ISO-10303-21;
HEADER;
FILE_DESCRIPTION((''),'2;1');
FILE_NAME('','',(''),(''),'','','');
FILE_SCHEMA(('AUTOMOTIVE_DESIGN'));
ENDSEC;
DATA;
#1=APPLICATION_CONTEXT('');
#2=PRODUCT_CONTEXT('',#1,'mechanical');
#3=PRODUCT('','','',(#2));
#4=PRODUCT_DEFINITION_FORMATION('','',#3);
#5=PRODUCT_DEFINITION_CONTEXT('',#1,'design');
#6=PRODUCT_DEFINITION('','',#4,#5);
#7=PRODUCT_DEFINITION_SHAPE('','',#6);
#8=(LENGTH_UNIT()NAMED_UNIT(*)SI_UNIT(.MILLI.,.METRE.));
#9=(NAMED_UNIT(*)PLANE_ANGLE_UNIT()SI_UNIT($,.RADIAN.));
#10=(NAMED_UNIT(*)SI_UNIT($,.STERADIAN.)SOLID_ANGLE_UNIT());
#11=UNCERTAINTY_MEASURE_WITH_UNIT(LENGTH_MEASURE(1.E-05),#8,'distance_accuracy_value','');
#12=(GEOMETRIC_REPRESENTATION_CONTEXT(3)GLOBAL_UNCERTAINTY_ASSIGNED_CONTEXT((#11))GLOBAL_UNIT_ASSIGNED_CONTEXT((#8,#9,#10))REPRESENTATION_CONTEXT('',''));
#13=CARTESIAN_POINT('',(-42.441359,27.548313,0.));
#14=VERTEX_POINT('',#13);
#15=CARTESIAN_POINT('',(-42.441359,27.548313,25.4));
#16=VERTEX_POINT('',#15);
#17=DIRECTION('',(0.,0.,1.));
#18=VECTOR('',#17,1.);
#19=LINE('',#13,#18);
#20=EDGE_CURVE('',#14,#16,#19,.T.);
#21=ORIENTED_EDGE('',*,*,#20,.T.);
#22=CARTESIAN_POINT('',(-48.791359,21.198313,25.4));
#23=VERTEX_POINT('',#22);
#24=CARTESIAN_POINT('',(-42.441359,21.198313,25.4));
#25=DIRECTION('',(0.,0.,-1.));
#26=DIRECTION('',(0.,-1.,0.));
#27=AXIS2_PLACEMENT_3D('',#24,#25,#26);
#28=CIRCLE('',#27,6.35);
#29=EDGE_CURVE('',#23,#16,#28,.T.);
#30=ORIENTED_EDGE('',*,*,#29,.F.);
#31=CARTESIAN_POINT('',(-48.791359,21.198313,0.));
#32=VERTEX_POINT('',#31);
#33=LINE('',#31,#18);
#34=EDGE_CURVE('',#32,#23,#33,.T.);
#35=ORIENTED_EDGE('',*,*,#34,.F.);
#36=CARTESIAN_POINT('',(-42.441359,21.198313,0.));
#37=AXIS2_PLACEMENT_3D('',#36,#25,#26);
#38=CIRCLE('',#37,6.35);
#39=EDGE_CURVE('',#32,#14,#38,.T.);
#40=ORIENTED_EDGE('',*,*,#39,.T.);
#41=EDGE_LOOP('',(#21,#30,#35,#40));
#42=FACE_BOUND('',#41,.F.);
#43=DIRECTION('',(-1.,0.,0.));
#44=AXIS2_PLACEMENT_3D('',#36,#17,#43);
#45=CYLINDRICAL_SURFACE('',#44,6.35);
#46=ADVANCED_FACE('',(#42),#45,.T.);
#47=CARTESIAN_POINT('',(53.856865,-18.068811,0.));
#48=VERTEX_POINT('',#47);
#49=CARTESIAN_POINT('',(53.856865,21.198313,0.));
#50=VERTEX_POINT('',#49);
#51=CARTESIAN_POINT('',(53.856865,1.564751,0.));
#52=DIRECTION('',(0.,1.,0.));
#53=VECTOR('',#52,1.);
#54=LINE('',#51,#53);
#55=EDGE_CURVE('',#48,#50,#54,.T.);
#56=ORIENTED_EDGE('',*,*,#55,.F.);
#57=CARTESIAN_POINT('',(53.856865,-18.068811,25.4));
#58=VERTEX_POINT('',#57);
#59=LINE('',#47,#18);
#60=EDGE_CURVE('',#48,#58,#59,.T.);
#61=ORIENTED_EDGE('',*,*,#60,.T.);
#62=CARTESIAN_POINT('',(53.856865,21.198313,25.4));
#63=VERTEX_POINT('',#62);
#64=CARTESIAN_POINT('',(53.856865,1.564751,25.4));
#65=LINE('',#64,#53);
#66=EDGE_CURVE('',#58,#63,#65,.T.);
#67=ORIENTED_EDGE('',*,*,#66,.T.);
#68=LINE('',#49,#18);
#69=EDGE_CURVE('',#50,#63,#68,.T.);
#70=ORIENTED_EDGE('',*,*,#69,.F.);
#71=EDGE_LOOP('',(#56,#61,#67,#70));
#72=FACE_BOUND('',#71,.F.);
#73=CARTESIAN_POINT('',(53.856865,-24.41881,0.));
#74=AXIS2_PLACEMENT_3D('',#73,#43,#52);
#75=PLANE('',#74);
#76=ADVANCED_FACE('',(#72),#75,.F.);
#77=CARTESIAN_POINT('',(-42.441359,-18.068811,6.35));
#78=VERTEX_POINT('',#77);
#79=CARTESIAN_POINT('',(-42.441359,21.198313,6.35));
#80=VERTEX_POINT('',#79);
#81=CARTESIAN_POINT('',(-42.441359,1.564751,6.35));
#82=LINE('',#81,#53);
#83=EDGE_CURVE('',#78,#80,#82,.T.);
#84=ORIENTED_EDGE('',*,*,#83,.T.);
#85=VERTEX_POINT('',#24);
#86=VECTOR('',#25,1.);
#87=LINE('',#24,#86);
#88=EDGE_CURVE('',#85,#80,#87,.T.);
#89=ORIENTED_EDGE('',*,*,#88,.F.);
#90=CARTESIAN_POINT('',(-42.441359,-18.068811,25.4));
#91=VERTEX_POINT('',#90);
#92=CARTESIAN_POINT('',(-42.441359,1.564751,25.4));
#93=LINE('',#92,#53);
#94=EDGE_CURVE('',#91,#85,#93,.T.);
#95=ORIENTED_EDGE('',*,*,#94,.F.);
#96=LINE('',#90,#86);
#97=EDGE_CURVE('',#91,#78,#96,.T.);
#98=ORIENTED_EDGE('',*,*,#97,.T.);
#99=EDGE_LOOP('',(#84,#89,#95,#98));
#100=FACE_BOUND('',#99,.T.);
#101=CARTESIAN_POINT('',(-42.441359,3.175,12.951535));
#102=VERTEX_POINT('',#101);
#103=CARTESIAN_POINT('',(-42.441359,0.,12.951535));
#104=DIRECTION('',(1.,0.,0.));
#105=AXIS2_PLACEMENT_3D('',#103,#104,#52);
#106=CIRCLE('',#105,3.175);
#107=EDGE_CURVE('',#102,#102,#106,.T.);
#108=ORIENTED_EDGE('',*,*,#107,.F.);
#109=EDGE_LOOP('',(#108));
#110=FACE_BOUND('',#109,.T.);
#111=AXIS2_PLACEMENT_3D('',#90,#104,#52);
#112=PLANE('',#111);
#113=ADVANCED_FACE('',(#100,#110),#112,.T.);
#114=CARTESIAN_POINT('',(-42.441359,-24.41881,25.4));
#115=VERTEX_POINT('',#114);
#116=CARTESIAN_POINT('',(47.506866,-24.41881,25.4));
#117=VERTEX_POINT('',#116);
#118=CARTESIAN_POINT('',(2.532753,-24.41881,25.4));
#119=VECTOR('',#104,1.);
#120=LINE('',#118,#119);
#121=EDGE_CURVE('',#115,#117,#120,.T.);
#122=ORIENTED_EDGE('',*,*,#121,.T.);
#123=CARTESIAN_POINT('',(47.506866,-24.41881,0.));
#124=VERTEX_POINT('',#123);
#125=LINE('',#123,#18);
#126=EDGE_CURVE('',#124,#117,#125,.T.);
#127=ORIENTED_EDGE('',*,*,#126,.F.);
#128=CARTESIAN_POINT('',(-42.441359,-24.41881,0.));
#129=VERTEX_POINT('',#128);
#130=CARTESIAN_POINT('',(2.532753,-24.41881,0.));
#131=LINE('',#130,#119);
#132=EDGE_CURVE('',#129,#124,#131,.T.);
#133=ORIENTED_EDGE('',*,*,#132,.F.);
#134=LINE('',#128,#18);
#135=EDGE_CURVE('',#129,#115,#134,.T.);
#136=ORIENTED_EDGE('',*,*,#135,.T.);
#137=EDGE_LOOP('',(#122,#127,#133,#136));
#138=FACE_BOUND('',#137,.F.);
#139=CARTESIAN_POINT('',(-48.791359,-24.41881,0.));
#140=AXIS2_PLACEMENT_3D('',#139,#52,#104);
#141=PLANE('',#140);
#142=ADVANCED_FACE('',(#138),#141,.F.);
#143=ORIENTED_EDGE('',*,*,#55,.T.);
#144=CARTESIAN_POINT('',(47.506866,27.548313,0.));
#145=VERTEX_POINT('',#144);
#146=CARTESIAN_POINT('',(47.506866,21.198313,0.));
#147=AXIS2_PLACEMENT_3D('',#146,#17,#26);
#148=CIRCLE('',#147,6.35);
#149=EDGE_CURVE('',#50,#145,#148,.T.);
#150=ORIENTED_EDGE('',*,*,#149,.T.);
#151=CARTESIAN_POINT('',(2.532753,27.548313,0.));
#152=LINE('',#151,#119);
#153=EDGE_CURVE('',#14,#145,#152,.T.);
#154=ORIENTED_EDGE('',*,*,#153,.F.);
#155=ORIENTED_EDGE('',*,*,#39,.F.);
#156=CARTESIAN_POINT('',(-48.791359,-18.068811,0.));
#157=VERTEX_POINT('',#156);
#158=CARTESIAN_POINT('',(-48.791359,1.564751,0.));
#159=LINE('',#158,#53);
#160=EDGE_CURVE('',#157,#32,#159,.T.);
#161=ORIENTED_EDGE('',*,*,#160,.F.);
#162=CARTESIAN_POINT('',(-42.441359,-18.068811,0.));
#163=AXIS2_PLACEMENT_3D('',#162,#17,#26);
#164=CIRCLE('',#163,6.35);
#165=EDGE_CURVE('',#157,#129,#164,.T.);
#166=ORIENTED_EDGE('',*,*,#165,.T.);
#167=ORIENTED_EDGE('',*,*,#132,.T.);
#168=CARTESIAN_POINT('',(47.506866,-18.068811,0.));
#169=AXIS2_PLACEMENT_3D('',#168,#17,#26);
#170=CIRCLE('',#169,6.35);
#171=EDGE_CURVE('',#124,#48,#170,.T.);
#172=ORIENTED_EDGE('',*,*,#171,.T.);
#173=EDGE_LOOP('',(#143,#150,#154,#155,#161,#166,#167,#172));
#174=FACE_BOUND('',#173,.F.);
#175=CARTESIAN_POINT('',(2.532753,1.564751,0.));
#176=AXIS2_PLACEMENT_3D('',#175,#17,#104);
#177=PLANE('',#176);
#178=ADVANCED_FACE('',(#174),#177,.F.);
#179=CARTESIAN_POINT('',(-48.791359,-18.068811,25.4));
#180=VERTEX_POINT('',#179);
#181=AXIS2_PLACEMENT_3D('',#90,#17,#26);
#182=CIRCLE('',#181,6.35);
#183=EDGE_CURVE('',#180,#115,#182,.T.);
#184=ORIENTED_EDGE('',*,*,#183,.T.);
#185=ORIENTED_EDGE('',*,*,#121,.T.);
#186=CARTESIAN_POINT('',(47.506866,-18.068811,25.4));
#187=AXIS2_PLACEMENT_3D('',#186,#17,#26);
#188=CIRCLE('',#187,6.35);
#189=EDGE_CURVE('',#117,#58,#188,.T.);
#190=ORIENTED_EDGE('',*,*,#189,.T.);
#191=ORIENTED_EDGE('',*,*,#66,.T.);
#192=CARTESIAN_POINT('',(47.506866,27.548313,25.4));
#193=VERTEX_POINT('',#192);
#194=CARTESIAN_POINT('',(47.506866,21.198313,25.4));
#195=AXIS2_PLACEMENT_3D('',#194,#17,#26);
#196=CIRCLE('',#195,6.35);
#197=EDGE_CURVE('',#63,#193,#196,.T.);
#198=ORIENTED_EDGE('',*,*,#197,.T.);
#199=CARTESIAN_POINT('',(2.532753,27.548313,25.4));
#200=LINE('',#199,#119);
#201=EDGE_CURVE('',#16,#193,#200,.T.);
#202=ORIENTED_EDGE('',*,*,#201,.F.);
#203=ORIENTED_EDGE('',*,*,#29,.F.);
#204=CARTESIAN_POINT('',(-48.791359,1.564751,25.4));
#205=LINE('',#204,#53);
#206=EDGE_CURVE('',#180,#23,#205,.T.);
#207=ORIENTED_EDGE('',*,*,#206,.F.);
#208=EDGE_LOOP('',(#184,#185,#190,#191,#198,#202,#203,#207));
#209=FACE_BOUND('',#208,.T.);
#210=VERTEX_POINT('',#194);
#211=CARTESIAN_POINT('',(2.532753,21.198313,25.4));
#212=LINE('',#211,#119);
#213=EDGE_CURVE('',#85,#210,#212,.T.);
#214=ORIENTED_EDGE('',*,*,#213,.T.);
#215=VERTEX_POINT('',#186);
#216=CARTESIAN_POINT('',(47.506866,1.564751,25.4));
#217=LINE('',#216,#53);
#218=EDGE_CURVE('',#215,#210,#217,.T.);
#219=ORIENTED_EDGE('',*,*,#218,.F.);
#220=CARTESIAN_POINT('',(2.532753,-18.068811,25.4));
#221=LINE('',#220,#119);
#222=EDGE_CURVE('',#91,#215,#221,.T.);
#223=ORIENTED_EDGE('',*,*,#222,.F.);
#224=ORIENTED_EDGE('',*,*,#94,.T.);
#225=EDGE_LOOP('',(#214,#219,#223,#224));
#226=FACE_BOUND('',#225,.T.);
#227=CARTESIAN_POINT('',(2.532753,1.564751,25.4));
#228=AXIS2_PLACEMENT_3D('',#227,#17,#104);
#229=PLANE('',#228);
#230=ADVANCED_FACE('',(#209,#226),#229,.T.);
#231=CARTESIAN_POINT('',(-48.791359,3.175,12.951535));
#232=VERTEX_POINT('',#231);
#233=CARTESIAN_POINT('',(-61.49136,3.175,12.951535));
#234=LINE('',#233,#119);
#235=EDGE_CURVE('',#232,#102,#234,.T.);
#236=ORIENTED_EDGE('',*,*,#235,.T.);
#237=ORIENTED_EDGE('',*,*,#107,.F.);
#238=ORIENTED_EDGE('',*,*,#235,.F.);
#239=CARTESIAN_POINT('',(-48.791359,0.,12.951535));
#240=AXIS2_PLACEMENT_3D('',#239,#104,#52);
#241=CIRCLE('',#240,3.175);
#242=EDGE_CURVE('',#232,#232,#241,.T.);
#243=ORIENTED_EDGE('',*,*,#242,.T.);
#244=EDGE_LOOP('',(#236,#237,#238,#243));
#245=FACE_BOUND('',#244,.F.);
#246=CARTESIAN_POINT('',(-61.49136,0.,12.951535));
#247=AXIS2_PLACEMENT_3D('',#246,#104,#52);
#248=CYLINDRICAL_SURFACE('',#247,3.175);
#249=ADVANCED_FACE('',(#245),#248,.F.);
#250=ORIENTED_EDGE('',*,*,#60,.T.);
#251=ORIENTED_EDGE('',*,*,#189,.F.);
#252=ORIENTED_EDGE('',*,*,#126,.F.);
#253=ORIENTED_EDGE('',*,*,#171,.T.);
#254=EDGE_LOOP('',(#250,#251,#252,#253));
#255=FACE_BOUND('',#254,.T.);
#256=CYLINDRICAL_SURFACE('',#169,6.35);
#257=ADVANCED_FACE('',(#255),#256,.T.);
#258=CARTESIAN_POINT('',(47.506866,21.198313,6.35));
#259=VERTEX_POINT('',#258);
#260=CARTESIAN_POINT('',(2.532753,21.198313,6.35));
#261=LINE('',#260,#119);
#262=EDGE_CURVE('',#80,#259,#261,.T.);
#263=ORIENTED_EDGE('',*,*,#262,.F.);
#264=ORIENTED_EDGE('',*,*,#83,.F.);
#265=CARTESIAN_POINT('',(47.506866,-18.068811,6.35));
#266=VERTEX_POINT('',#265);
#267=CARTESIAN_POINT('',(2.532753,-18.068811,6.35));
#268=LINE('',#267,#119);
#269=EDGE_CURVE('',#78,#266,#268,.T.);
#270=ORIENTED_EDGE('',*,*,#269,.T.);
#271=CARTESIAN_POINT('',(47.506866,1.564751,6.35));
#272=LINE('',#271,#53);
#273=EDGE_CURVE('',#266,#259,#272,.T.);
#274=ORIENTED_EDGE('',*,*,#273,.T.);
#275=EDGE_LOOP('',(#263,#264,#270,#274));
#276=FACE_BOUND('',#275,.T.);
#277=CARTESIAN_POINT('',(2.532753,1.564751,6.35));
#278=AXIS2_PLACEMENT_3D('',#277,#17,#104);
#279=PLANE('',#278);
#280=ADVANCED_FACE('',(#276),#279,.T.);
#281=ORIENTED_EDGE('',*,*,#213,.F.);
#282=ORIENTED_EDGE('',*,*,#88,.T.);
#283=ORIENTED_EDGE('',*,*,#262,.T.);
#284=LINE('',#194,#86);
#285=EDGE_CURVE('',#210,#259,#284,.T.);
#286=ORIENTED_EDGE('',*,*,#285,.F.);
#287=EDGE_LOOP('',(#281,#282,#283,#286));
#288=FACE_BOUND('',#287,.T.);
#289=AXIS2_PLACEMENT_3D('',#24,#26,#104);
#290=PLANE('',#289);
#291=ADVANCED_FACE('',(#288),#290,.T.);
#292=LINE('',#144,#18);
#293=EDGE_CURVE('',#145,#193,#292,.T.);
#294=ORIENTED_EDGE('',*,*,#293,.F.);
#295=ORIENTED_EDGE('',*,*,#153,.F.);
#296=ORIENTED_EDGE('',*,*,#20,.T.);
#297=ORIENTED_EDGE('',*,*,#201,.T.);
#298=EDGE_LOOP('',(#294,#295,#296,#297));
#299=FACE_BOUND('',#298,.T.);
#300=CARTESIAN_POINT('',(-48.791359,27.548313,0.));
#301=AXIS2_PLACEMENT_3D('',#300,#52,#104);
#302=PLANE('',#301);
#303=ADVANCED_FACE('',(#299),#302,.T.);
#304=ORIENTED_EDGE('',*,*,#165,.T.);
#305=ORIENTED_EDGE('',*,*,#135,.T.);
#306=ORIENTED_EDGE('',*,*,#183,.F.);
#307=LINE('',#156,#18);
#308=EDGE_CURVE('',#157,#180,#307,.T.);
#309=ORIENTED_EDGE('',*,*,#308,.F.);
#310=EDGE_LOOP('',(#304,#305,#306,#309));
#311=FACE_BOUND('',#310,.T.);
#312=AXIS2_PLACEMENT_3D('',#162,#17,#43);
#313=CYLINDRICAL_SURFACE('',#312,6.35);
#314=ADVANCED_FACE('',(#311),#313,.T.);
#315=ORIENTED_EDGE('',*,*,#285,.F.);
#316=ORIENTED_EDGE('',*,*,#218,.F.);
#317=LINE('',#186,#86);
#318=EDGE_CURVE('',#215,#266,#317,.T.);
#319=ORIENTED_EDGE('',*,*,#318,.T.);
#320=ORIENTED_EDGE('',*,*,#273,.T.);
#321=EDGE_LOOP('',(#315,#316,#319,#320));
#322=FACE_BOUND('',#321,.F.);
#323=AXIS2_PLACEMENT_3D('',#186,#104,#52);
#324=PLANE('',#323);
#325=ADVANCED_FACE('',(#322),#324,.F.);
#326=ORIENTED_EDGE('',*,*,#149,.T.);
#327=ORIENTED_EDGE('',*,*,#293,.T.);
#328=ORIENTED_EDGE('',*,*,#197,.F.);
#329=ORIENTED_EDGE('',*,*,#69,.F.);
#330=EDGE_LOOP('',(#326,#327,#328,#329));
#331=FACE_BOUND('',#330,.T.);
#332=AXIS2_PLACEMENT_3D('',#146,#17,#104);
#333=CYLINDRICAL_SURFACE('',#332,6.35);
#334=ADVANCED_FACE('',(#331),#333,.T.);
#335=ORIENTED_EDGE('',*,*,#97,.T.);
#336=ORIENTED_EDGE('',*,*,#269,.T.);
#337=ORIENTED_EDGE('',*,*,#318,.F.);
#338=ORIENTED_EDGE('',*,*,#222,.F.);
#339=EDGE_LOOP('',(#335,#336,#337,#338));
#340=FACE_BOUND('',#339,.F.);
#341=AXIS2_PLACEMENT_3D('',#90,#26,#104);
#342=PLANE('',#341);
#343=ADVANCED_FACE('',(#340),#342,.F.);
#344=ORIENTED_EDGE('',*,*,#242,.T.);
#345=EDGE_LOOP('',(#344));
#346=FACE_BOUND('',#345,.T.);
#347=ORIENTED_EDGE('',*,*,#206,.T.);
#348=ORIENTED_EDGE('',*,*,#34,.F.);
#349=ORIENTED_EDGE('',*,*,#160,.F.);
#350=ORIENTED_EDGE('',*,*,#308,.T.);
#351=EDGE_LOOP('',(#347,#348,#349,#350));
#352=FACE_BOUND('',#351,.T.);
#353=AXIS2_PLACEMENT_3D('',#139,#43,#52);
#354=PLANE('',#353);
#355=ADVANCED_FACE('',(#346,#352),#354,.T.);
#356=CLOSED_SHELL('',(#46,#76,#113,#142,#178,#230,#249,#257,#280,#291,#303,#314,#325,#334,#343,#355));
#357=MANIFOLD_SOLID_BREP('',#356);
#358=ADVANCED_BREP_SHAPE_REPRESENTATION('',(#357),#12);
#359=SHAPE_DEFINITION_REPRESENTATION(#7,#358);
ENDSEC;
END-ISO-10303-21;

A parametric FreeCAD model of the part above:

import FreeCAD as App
import Part
import Sketcher

V = App.Vector
Q = App.Units.Quantity


def edges_at(feature, points):
    """Names of the edges that pass closest to the given points."""
    edges = feature.Shape.Edges
    near = lambda p: min(range(len(edges)), key=lambda i: edges[i].distToShape(Part.Vertex(*p))[0])
    return sorted({f"Edge{near(p) + 1}" for p in points})

doc = App.newDocument("Part")
body = doc.addObject("PartDesign::Body", "Body")

# Sketch on XY plane
sketch1 = doc.addObject("Sketcher::SketchObject", "Sketch")
body.addObject(sketch1)
sketch1.AttachmentSupport = (doc.XY_Plane, [""])
sketch1.MapMode = "FlatFace"
sketch1.addGeometry([
    Part.LineSegment(V(-49, 28, 0), V(-49, -24, 0)),
    Part.LineSegment(V(-49, -24, 0), V(54, -24, 0)),
    Part.LineSegment(V(54, -24, 0), V(54, 28, 0)),
    Part.LineSegment(V(54, 28, 0), V(-49, 28, 0)),
], False)
sketch1.addConstraint([
    Sketcher.Constraint("Coincident", 0, 2, 1, 1),
    Sketcher.Constraint("Coincident", 1, 2, 2, 1),
    Sketcher.Constraint("Coincident", 2, 2, 3, 1),
    Sketcher.Constraint("Coincident", 3, 2, 0, 1),
    Sketcher.Constraint("Vertical", 0),
    Sketcher.Constraint("Horizontal", 1),
    Sketcher.Constraint("Vertical", 2),
    Sketcher.Constraint("Horizontal", 3),
    Sketcher.Constraint("DistanceX", 1, 1, 1, 2, Q("102.648225 mm")),
    Sketcher.Constraint("DistanceY", 0, 2, 0, 1, Q("51.967123 mm")),
    Sketcher.Constraint("DistanceX", 0, 2, -1, 1, Q("48.791359 mm")),
    Sketcher.Constraint("DistanceY", 0, 2, -1, 1, Q("24.41881 mm")),
])
pad1 = doc.addObject("PartDesign::Pad", "Pad")
body.addObject(pad1)
pad1.Profile = sketch1
pad1.Length = Q("1 in")
doc.recompute()

fillet = doc.addObject("PartDesign::Fillet", "Fillet")
body.addObject(fillet)
fillet.Base = (pad1, edges_at(pad1, [
    (-48.791, -24.419, 12.7),
    (-48.791, 27.548, 12.7),
    (53.857, -24.419, 12.7),
    (53.857, 27.548, 12.7),
]))
fillet.Radius = Q("0.25 in")

# Sketch on XY plane
sketch2 = doc.addObject("Sketcher::SketchObject", "Sketch001")
body.addObject(sketch2)
sketch2.AttachmentSupport = (doc.XY_Plane, [""])
sketch2.MapMode = "FlatFace"
sketch2.AttachmentOffset = App.Placement(V(0, 0, 1 * 25.4), App.Rotation())
sketch2.addGeometry([
    Part.LineSegment(V(-42, 21, 0), V(-42, -18, 0)),
    Part.LineSegment(V(-42, -18, 0), V(48, -18, 0)),
    Part.LineSegment(V(48, -18, 0), V(48, 21, 0)),
    Part.LineSegment(V(48, 21, 0), V(-42, 21, 0)),
], False)
sketch2.addConstraint([
    Sketcher.Constraint("Coincident", 0, 2, 1, 1),
    Sketcher.Constraint("Coincident", 1, 2, 2, 1),
    Sketcher.Constraint("Coincident", 2, 2, 3, 1),
    Sketcher.Constraint("Coincident", 3, 2, 0, 1),
    Sketcher.Constraint("Vertical", 0),
    Sketcher.Constraint("Horizontal", 1),
    Sketcher.Constraint("Vertical", 2),
    Sketcher.Constraint("Horizontal", 3),
    Sketcher.Constraint("DistanceX", 1, 1, 1, 2, Q("89.948225 mm")),
    Sketcher.Constraint("DistanceY", 0, 2, 0, 1, Q("39.267123 mm")),
    Sketcher.Constraint("DistanceX", 0, 2, -1, 1, Q("42.441359 mm")),
    Sketcher.Constraint("DistanceY", 0, 2, -1, 1, Q("18.068811 mm")),
])
pocket1 = doc.addObject("PartDesign::Pocket", "Pocket")
body.addObject(pocket1)
pocket1.Profile = sketch2
pocket1.Length = Q("0.75 in")

# Sketch on YZ plane
sketch3 = doc.addObject("Sketcher::SketchObject", "Sketch002")
body.addObject(sketch3)
sketch3.AttachmentSupport = (doc.YZ_Plane, [""])
sketch3.MapMode = "FlatFace"
sketch3.AttachmentOffset = App.Placement(V(0, 0, -48.79136), App.Rotation())
sketch3.addGeometry(Part.Circle(V(0, 13, 0), V(0, 0, 1), 3.2), False)
sketch3.addConstraint([
    Sketcher.Constraint("PointOnObject", 0, 3, -2),
    Sketcher.Constraint("Diameter", 0, Q("0.25 in")),
    Sketcher.Constraint("DistanceY", -1, 1, 0, 3, Q("12.951535 mm")),
])
doc.recompute()
hole = doc.addObject("PartDesign::Hole", "Hole")
body.addObject(hole)
hole.Profile = sketch3
hole.ThreadType = "None"
hole.Diameter = Q("0.25 in")
hole.DepthType = "Dimension"
hole.Depth = Q("0.5 in")
hole.DrillPoint = "Flat"
hole.Reversed = True

doc.recompute()
